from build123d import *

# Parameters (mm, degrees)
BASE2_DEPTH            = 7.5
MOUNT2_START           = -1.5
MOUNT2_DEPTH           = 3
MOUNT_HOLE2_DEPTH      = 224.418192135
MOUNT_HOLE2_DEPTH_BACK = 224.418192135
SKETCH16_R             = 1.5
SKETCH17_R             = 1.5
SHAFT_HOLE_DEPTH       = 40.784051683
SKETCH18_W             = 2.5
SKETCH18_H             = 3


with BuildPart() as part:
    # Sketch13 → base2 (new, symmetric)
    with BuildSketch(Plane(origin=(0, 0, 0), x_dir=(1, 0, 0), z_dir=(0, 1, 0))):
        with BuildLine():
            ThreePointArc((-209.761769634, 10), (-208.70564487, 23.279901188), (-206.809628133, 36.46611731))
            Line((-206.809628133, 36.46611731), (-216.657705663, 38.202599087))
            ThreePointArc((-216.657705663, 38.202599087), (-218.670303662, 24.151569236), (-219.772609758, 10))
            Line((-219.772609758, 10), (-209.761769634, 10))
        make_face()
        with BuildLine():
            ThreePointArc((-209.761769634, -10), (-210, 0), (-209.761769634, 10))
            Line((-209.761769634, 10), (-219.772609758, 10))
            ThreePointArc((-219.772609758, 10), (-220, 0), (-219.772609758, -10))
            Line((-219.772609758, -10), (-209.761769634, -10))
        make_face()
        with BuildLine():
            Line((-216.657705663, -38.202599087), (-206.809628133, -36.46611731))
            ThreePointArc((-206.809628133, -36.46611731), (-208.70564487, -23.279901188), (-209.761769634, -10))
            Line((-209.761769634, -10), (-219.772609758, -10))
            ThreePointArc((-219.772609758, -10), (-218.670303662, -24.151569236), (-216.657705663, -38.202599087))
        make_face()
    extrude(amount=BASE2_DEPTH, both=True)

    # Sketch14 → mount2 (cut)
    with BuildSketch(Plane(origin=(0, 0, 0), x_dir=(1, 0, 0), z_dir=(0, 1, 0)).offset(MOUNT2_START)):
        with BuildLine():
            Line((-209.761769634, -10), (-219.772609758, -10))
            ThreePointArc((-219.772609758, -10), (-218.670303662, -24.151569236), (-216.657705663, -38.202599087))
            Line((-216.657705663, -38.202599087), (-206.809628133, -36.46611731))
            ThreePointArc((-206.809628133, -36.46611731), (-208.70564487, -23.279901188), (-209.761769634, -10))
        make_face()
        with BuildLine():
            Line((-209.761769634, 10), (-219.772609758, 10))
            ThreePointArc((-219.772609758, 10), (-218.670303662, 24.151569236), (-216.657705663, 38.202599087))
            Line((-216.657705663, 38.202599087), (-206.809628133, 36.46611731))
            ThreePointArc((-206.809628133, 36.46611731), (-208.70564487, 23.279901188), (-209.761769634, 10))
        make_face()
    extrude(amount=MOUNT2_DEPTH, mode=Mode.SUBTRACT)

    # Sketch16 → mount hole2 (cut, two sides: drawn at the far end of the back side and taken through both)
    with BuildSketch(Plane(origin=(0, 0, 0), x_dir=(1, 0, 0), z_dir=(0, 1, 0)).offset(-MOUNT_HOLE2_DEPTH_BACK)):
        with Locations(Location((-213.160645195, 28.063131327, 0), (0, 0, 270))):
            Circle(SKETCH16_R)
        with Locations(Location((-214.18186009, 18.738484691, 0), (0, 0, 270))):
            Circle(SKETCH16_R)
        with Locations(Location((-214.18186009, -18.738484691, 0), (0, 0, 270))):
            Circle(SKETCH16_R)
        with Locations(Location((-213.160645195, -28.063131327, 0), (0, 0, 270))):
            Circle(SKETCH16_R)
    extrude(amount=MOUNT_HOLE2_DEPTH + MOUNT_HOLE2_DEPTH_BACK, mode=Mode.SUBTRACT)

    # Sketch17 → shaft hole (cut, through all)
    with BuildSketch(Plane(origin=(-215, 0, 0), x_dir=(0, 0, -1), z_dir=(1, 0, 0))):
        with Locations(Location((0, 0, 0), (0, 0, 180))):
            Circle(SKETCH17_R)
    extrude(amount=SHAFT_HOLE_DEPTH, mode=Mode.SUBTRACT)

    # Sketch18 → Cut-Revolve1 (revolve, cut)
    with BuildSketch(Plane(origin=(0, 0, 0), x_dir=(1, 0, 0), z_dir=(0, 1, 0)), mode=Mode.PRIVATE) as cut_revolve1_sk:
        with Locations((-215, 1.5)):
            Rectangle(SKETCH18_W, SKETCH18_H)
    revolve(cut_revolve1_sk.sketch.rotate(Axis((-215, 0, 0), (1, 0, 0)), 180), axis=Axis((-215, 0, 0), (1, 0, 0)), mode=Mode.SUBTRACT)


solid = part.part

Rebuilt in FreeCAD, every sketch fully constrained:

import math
import FreeCAD as App
import Part
import Sketcher
Q = App.Units.Quantity

doc = App.newDocument("Part")
body = doc.addObject("PartDesign::Body", "Body")

sketch1 = body.newObject("Sketcher::SketchObject", "Sketch")
sketch1.AttachmentSupport = (doc.getObject("XZ_Plane"), [""])
sketch1.MapMode = "FlatFace"
sketch1.addGeometry([
    Part.ArcOfCircle(Part.Circle(App.Vector(0, 0, 0), App.Vector(0, 0, 1), 210), math.radians(-177.27), math.radians(-170)),
    Part.LineSegment(App.Vector(-207, -36, 0), App.Vector(-217, -38, 0)),
    Part.ArcOfCircle(Part.Circle(App.Vector(0, 0, 0), App.Vector(0, 0, 1), 220), math.radians(-177.39), math.radians(-170)),
    Part.ArcOfCircle(Part.Circle(App.Vector(0, 0, 0), App.Vector(0, 0, 1), 220), math.radians(177.39), math.radians(182.61)),
    Part.ArcOfCircle(Part.Circle(App.Vector(0, 0, 0), App.Vector(0, 0, 1), 220), math.radians(170), math.radians(177.39)),
    Part.LineSegment(App.Vector(-217, 38, 0), App.Vector(-207, 36, 0)),
    Part.ArcOfCircle(Part.Circle(App.Vector(0, 0, 0), App.Vector(0, 0, 1), 210), math.radians(170), math.radians(177.27)),
    Part.ArcOfCircle(Part.Circle(App.Vector(0, 0, 0), App.Vector(0, 0, 1), 210), math.radians(177.27), math.radians(182.73)),
], False)
sketch1.addConstraint([
    Sketcher.Constraint("Coincident", 0, 2, 1, 1),
    Sketcher.Constraint("Coincident", 1, 2, 2, 2),
    Sketcher.Constraint("Tangent", 2, 1, 3, 2),
    Sketcher.Constraint("Tangent", 3, 1, 4, 2),
    Sketcher.Constraint("Coincident", 4, 1, 5, 1),
    Sketcher.Constraint("Coincident", 5, 2, 6, 1),
    Sketcher.Constraint("Tangent", 6, 2, 7, 1),
    Sketcher.Constraint("Tangent", 7, 2, 0, 1),
    Sketcher.Constraint("Coincident", 0, 3, -1, 1),
    Sketcher.Constraint("Coincident", 2, 3, -1, 1),
    Sketcher.Constraint("Coincident", 4, 3, -1, 1),
    Sketcher.Constraint("Coincident", 6, 3, -1, 1),
    Sketcher.Constraint("Horizontal", 3, 1, 6, 2),
    Sketcher.Constraint("Horizontal", 2, 1, 7, 2),
    Sketcher.Constraint("Vertical", 2, 1, 3, 1),
    Sketcher.Constraint("Vertical", 1, 2, 4, 1),
    Sketcher.Constraint("Vertical", 0, 2, 5, 2),
    Sketcher.Constraint("Radius", 0, Q("210 mm")),
    Sketcher.Constraint("Radius", 2, Q("220 mm")),
    Sketcher.Constraint("Angle", 1, Q("-170 deg")),
    Sketcher.Constraint("DistanceY", 2, 1, -1, 1, Q("10 mm")),
    Sketcher.Constraint("DistanceY", 1, 2, -1, 1, Q("38.202599 mm")),
])
pad1 = body.newObject("PartDesign::Pad", "Pad")
pad1.Profile = sketch1
pad1.Length = 15
pad1.Midplane = True

sketch2 = body.newObject("Sketcher::SketchObject", "Sketch001")
sketch2.AttachmentSupport = (doc.getObject("XZ_Plane"), [""])
sketch2.MapMode = "FlatFace"
sketch2.AttachmentOffset = App.Placement(App.Vector(0, 0, 1.5), App.Rotation())
sketch2.addGeometry([
    Part.LineSegment(App.Vector(-210, 10, 0), App.Vector(-220, 10, 0)),
    Part.ArcOfCircle(Part.Circle(App.Vector(0, 0, 0), App.Vector(0, 0, 1), 220), math.radians(170), math.radians(177.39)),
    Part.LineSegment(App.Vector(-217, 38, 0), App.Vector(-207, 36, 0)),
    Part.ArcOfCircle(Part.Circle(App.Vector(0, 0, 0), App.Vector(0, 0, 1), 210), math.radians(170), math.radians(177.27)),
    Part.LineSegment(App.Vector(-220, -10, 0), App.Vector(-210, -10, 0)),
    Part.ArcOfCircle(Part.Circle(App.Vector(0, 0, 0), App.Vector(0, 0, 1), 210), math.radians(-177.27), math.radians(-170)),
    Part.LineSegment(App.Vector(-207, -36, 0), App.Vector(-217, -38, 0)),
    Part.ArcOfCircle(Part.Circle(App.Vector(0, 0, 0), App.Vector(0, 0, 1), 220), math.radians(-177.39), math.radians(-170)),
], False)
sketch2.addConstraint([
    Sketcher.Constraint("Coincident", 0, 2, 1, 2),
    Sketcher.Constraint("Coincident", 1, 1, 2, 1),
    Sketcher.Constraint("Coincident", 2, 2, 3, 1),
    Sketcher.Constraint("Coincident", 3, 2, 0, 1),
    Sketcher.Constraint("Coincident", 4, 2, 5, 1),
    Sketcher.Constraint("Coincident", 5, 2, 6, 1),
    Sketcher.Constraint("Coincident", 6, 2, 7, 2),
    Sketcher.Constraint("Coincident", 7, 1, 4, 1),
    Sketcher.Constraint("Horizontal", 0),
    Sketcher.Constraint("Horizontal", 4),
    Sketcher.Constraint("Coincident", 1, 3, -1, 1),
    Sketcher.Constraint("Coincident", 3, 3, -1, 1),
    Sketcher.Constraint("Coincident", 5, 3, -1, 1),
    Sketcher.Constraint("Coincident", 7, 3, -1, 1),
    Sketcher.Constraint("Equal", 3, 5),
    Sketcher.Constraint("Equal", 1, 7),
    Sketcher.Constraint("Vertical", 3, 2, 4, 2),
    Sketcher.Constraint("Vertical", 2, 2, 5, 2),
    Sketcher.Constraint("Vertical", 1, 1, 6, 2),
    Sketcher.Constraint("Radius", 1, Q("220 mm")),
    Sketcher.Constraint("Radius", 3, Q("210 mm")),
    Sketcher.Constraint("Angle", 2, Q("-10 deg")),
    Sketcher.Constraint("DistanceY", -1, 1, 0, 2, Q("10 mm")),
    Sketcher.Constraint("DistanceY", -1, 1, 1, 1, Q("38.202599 mm")),
])
pocket1 = body.newObject("PartDesign::Pocket", "Pocket")
pocket1.Profile = sketch2
pocket1.Length = 3

sketch3 = body.newObject("Sketcher::SketchObject", "Sketch002")
sketch3.AttachmentSupport = (doc.getObject("XZ_Plane"), [""])
sketch3.MapMode = "FlatFace"
sketch3.addGeometry([
    Part.Circle(App.Vector(-213.2, -28.1, 0), App.Vector(0, 0, 1), 1.5),
    Part.Circle(App.Vector(-214.2, -18.7, 0), App.Vector(0, 0, 1), 1.5),
    Part.Circle(App.Vector(-214.2, 18.7, 0), App.Vector(0, 0, 1), 1.5),
    Part.Circle(App.Vector(-213.2, 28.1, 0), App.Vector(0, 0, 1), 1.5),
], False)
sketch3.addConstraint([
    Sketcher.Constraint("Equal", 0, 1),
    Sketcher.Constraint("Equal", 1, 2),
    Sketcher.Constraint("Equal", 2, 3),
    Sketcher.Constraint("Symmetric", 1, 3, 2, 3, -1),
    Sketcher.Constraint("Symmetric", 0, 3, 3, 3, -1),
    Sketcher.Constraint("Diameter", 0, Q("3 mm")),
    Sketcher.Constraint("DistanceY", 0, 3, -1, 1, Q("28.063131 mm")),
    Sketcher.Constraint("DistanceX", 1, 3, -1, 1, Q("214.18186 mm")),
    Sketcher.Constraint("DistanceY", 1, 3, 2, 3, Q("37.476969 mm")),
    Sketcher.Constraint("DistanceX", 0, 3, -1, 1, Q("213.160645 mm")),
])
pocket2 = body.newObject("PartDesign::Pocket", "Pocket001")
pocket2.Profile = sketch3
pocket2.Type = "ThroughAll"
pocket2.Midplane = True

sketch4 = body.newObject("Sketcher::SketchObject", "Sketch003")
sketch4.AttachmentSupport = (doc.getObject("YZ_Plane"), [""])
sketch4.MapMode = "FlatFace"
sketch4.AttachmentOffset = App.Placement(App.Vector(0, 0, -215), App.Rotation())
sketch4.addGeometry(Part.Circle(App.Vector(0, 0, 0), App.Vector(0, 0, 1), 1.5), False)
sketch4.addConstraint([
    Sketcher.Constraint("Coincident", 0, 3, -1, 1),
    Sketcher.Constraint("Diameter", 0, Q("3 mm")),
])
pocket3 = body.newObject("PartDesign::Pocket", "Pocket002")
pocket3.Profile = sketch4
pocket3.Type = "ThroughAll"
pocket3.Reversed = True

sketch5 = body.newObject("Sketcher::SketchObject", "Sketch004")
sketch5.AttachmentSupport = (doc.getObject("XZ_Plane"), [""])
sketch5.MapMode = "FlatFace"
sketch5.addGeometry([
    Part.LineSegment(App.Vector(-216.2, -3, 0), App.Vector(-216.2, 0, 0)),
    Part.LineSegment(App.Vector(-216.2, 0, 0), App.Vector(-213.8, 0, 0)),
    Part.LineSegment(App.Vector(-213.8, 0, 0), App.Vector(-213.8, -3, 0)),
    Part.LineSegment(App.Vector(-213.8, -3, 0), App.Vector(-216.2, -3, 0)),
], False)
sketch5.addConstraint([
    Sketcher.Constraint("Coincident", 0, 2, 1, 1),
    Sketcher.Constraint("Coincident", 1, 2, 2, 1),
    Sketcher.Constraint("Coincident", 2, 2, 3, 1),
    Sketcher.Constraint("Coincident", 3, 2, 0, 1),
    Sketcher.Constraint("Vertical", 0),
    Sketcher.Constraint("Horizontal", 1),
    Sketcher.Constraint("Vertical", 2),
    Sketcher.Constraint("Horizontal", 3),
    Sketcher.Constraint("PointOnObject", 0, 2, -1),
    Sketcher.Constraint("DistanceY", 0, 1, 0, 2, Q("3 mm")),
    Sketcher.Constraint("DistanceX", 1, 1, 1, 2, Q("2.5 mm")),
    Sketcher.Constraint("DistanceX", 0, 2, -1, 1, Q("216.25 mm")),
])
groove = body.newObject("PartDesign::Groove", "Groove")
groove.Profile = sketch5
groove.ReferenceAxis = (sketch5, ["H_Axis"])
groove.Angle = 360

doc.recompute()
